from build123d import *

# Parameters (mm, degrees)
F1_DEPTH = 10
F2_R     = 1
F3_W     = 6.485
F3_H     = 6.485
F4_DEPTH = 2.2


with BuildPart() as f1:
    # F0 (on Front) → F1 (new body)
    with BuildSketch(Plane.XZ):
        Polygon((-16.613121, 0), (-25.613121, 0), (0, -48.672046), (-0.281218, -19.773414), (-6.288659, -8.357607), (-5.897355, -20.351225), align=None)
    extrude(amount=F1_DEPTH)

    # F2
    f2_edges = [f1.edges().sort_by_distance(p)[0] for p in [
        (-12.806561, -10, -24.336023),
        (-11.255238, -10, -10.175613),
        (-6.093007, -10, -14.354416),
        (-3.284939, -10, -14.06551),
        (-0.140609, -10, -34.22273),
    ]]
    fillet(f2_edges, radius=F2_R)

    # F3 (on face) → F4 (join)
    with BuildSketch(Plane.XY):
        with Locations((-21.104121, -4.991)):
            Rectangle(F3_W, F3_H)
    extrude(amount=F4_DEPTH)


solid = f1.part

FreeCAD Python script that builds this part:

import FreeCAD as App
import Part
import Sketcher
from FreeCAD import Vector


def edges_at(feature, points):
    """Names of the edges that pass closest to the given points."""
    edges = feature.Shape.Edges
    near = lambda p: min(range(len(edges)), key=lambda i: edges[i].distToShape(Part.Vertex(*p))[0])
    return sorted({f"Edge{near(p) + 1}" for p in points})

doc = App.newDocument("Part")
body = doc.addObject("PartDesign::Body", "Body")

sketch1 = doc.addObject("Sketcher::SketchObject", "Sketch")
body.addObject(sketch1)
sketch1.AttachmentSupport = (doc.XZ_Plane, [""])
sketch1.MapMode = "FlatFace"
sketch1.addGeometry([
    Part.LineSegment(Vector(-17, 0, 0), Vector(-26, 0, 0)),
    Part.LineSegment(Vector(-26, 0, 0), Vector(0, -49, 0)),
    Part.LineSegment(Vector(0, -49, 0), Vector(0, -20, 0)),
    Part.LineSegment(Vector(0, -20, 0), Vector(-6, -8, 0)),
    Part.LineSegment(Vector(-6, -8, 0), Vector(-6, -20, 0)),
    Part.LineSegment(Vector(-6, -20, 0), Vector(-17, 0, 0)),
], False)
sketch1.addConstraint([
    Sketcher.Constraint("Coincident", 0, 2, 1, 1),
    Sketcher.Constraint("Coincident", 1, 2, 2, 1),
    Sketcher.Constraint("Coincident", 2, 2, 3, 1),
    Sketcher.Constraint("Coincident", 3, 2, 4, 1),
    Sketcher.Constraint("Coincident", 4, 2, 5, 1),
    Sketcher.Constraint("Coincident", 5, 2, 0, 1),
    Sketcher.Constraint("Horizontal", 0),
    Sketcher.Constraint("PointOnObject", 0, 2, -1),
    Sketcher.Constraint("PointOnObject", 1, 2, -2),
    Sketcher.Constraint("Parallel", 1, 3),
    Sketcher.Constraint("DistanceX", 0, 2, 0, 1, 9.0),
    Sketcher.Constraint("Distance", 1, 55.0),
    Sketcher.Constraint("Distance", 4, 12.0),
    Sketcher.Constraint("Distance", 5, 23.0),
    Sketcher.Constraint("Distance", 2, 28.9),
    Sketcher.Constraint("Distance", 3, 12.9),
    Sketcher.Constraint("DistanceX", 0, 2, -1, 1, 25.613121),
    Sketcher.Constraint("DistanceX", 3, 2, -1, 1, 6.288659),
])
pad1 = doc.addObject("PartDesign::Pad", "Pad")
body.addObject(pad1)
pad1.Profile = sketch1
pad1.Length = 10
doc.recompute()

fillet = doc.addObject("PartDesign::Fillet", "Fillet")
body.addObject(fillet)
fillet.Base = (pad1, edges_at(pad1, [
    (-12.807, -10, -24.336),
    (-11.255, -10, -10.176),
    (-6.093, -10, -14.354),
    (-3.285, -10, -14.066),
    (-0.141, -10, -34.223),
]))
fillet.Radius = 1

sketch2 = doc.addObject("Sketcher::SketchObject", "Sketch001")
body.addObject(sketch2)
sketch2.AttachmentSupport = (doc.XY_Plane, [""])
sketch2.MapMode = "FlatFace"
sketch2.addGeometry([
    Part.LineSegment(Vector(-24, -2, 0), Vector(-24, -8, 0)),
    Part.LineSegment(Vector(-24, -8, 0), Vector(-18, -8, 0)),
    Part.LineSegment(Vector(-18, -8, 0), Vector(-18, -2, 0)),
    Part.LineSegment(Vector(-18, -2, 0), Vector(-24, -2, 0)),
], False)
sketch2.addConstraint([
    Sketcher.Constraint("Coincident", 0, 2, 1, 1),
    Sketcher.Constraint("Coincident", 1, 2, 2, 1),
    Sketcher.Constraint("Coincident", 2, 2, 3, 1),
    Sketcher.Constraint("Coincident", 3, 2, 0, 1),
    Sketcher.Constraint("Vertical", 0),
    Sketcher.Constraint("Horizontal", 1),
    Sketcher.Constraint("Vertical", 2),
    Sketcher.Constraint("Horizontal", 3),
    Sketcher.Constraint("Equal", 3, 0),
    Sketcher.Constraint("DistanceX", 1, 1, 1, 2, 6.485),
    Sketcher.Constraint("DistanceY", 0, 2, -1, 1, 8.2335),
    Sketcher.Constraint("DistanceX", 0, 2, -1, 1, 24.346621),
])
pad2 = doc.addObject("PartDesign::Pad", "Pad001")
body.addObject(pad2)
pad2.Profile = sketch2
pad2.Length = 2.2

doc.recompute()
